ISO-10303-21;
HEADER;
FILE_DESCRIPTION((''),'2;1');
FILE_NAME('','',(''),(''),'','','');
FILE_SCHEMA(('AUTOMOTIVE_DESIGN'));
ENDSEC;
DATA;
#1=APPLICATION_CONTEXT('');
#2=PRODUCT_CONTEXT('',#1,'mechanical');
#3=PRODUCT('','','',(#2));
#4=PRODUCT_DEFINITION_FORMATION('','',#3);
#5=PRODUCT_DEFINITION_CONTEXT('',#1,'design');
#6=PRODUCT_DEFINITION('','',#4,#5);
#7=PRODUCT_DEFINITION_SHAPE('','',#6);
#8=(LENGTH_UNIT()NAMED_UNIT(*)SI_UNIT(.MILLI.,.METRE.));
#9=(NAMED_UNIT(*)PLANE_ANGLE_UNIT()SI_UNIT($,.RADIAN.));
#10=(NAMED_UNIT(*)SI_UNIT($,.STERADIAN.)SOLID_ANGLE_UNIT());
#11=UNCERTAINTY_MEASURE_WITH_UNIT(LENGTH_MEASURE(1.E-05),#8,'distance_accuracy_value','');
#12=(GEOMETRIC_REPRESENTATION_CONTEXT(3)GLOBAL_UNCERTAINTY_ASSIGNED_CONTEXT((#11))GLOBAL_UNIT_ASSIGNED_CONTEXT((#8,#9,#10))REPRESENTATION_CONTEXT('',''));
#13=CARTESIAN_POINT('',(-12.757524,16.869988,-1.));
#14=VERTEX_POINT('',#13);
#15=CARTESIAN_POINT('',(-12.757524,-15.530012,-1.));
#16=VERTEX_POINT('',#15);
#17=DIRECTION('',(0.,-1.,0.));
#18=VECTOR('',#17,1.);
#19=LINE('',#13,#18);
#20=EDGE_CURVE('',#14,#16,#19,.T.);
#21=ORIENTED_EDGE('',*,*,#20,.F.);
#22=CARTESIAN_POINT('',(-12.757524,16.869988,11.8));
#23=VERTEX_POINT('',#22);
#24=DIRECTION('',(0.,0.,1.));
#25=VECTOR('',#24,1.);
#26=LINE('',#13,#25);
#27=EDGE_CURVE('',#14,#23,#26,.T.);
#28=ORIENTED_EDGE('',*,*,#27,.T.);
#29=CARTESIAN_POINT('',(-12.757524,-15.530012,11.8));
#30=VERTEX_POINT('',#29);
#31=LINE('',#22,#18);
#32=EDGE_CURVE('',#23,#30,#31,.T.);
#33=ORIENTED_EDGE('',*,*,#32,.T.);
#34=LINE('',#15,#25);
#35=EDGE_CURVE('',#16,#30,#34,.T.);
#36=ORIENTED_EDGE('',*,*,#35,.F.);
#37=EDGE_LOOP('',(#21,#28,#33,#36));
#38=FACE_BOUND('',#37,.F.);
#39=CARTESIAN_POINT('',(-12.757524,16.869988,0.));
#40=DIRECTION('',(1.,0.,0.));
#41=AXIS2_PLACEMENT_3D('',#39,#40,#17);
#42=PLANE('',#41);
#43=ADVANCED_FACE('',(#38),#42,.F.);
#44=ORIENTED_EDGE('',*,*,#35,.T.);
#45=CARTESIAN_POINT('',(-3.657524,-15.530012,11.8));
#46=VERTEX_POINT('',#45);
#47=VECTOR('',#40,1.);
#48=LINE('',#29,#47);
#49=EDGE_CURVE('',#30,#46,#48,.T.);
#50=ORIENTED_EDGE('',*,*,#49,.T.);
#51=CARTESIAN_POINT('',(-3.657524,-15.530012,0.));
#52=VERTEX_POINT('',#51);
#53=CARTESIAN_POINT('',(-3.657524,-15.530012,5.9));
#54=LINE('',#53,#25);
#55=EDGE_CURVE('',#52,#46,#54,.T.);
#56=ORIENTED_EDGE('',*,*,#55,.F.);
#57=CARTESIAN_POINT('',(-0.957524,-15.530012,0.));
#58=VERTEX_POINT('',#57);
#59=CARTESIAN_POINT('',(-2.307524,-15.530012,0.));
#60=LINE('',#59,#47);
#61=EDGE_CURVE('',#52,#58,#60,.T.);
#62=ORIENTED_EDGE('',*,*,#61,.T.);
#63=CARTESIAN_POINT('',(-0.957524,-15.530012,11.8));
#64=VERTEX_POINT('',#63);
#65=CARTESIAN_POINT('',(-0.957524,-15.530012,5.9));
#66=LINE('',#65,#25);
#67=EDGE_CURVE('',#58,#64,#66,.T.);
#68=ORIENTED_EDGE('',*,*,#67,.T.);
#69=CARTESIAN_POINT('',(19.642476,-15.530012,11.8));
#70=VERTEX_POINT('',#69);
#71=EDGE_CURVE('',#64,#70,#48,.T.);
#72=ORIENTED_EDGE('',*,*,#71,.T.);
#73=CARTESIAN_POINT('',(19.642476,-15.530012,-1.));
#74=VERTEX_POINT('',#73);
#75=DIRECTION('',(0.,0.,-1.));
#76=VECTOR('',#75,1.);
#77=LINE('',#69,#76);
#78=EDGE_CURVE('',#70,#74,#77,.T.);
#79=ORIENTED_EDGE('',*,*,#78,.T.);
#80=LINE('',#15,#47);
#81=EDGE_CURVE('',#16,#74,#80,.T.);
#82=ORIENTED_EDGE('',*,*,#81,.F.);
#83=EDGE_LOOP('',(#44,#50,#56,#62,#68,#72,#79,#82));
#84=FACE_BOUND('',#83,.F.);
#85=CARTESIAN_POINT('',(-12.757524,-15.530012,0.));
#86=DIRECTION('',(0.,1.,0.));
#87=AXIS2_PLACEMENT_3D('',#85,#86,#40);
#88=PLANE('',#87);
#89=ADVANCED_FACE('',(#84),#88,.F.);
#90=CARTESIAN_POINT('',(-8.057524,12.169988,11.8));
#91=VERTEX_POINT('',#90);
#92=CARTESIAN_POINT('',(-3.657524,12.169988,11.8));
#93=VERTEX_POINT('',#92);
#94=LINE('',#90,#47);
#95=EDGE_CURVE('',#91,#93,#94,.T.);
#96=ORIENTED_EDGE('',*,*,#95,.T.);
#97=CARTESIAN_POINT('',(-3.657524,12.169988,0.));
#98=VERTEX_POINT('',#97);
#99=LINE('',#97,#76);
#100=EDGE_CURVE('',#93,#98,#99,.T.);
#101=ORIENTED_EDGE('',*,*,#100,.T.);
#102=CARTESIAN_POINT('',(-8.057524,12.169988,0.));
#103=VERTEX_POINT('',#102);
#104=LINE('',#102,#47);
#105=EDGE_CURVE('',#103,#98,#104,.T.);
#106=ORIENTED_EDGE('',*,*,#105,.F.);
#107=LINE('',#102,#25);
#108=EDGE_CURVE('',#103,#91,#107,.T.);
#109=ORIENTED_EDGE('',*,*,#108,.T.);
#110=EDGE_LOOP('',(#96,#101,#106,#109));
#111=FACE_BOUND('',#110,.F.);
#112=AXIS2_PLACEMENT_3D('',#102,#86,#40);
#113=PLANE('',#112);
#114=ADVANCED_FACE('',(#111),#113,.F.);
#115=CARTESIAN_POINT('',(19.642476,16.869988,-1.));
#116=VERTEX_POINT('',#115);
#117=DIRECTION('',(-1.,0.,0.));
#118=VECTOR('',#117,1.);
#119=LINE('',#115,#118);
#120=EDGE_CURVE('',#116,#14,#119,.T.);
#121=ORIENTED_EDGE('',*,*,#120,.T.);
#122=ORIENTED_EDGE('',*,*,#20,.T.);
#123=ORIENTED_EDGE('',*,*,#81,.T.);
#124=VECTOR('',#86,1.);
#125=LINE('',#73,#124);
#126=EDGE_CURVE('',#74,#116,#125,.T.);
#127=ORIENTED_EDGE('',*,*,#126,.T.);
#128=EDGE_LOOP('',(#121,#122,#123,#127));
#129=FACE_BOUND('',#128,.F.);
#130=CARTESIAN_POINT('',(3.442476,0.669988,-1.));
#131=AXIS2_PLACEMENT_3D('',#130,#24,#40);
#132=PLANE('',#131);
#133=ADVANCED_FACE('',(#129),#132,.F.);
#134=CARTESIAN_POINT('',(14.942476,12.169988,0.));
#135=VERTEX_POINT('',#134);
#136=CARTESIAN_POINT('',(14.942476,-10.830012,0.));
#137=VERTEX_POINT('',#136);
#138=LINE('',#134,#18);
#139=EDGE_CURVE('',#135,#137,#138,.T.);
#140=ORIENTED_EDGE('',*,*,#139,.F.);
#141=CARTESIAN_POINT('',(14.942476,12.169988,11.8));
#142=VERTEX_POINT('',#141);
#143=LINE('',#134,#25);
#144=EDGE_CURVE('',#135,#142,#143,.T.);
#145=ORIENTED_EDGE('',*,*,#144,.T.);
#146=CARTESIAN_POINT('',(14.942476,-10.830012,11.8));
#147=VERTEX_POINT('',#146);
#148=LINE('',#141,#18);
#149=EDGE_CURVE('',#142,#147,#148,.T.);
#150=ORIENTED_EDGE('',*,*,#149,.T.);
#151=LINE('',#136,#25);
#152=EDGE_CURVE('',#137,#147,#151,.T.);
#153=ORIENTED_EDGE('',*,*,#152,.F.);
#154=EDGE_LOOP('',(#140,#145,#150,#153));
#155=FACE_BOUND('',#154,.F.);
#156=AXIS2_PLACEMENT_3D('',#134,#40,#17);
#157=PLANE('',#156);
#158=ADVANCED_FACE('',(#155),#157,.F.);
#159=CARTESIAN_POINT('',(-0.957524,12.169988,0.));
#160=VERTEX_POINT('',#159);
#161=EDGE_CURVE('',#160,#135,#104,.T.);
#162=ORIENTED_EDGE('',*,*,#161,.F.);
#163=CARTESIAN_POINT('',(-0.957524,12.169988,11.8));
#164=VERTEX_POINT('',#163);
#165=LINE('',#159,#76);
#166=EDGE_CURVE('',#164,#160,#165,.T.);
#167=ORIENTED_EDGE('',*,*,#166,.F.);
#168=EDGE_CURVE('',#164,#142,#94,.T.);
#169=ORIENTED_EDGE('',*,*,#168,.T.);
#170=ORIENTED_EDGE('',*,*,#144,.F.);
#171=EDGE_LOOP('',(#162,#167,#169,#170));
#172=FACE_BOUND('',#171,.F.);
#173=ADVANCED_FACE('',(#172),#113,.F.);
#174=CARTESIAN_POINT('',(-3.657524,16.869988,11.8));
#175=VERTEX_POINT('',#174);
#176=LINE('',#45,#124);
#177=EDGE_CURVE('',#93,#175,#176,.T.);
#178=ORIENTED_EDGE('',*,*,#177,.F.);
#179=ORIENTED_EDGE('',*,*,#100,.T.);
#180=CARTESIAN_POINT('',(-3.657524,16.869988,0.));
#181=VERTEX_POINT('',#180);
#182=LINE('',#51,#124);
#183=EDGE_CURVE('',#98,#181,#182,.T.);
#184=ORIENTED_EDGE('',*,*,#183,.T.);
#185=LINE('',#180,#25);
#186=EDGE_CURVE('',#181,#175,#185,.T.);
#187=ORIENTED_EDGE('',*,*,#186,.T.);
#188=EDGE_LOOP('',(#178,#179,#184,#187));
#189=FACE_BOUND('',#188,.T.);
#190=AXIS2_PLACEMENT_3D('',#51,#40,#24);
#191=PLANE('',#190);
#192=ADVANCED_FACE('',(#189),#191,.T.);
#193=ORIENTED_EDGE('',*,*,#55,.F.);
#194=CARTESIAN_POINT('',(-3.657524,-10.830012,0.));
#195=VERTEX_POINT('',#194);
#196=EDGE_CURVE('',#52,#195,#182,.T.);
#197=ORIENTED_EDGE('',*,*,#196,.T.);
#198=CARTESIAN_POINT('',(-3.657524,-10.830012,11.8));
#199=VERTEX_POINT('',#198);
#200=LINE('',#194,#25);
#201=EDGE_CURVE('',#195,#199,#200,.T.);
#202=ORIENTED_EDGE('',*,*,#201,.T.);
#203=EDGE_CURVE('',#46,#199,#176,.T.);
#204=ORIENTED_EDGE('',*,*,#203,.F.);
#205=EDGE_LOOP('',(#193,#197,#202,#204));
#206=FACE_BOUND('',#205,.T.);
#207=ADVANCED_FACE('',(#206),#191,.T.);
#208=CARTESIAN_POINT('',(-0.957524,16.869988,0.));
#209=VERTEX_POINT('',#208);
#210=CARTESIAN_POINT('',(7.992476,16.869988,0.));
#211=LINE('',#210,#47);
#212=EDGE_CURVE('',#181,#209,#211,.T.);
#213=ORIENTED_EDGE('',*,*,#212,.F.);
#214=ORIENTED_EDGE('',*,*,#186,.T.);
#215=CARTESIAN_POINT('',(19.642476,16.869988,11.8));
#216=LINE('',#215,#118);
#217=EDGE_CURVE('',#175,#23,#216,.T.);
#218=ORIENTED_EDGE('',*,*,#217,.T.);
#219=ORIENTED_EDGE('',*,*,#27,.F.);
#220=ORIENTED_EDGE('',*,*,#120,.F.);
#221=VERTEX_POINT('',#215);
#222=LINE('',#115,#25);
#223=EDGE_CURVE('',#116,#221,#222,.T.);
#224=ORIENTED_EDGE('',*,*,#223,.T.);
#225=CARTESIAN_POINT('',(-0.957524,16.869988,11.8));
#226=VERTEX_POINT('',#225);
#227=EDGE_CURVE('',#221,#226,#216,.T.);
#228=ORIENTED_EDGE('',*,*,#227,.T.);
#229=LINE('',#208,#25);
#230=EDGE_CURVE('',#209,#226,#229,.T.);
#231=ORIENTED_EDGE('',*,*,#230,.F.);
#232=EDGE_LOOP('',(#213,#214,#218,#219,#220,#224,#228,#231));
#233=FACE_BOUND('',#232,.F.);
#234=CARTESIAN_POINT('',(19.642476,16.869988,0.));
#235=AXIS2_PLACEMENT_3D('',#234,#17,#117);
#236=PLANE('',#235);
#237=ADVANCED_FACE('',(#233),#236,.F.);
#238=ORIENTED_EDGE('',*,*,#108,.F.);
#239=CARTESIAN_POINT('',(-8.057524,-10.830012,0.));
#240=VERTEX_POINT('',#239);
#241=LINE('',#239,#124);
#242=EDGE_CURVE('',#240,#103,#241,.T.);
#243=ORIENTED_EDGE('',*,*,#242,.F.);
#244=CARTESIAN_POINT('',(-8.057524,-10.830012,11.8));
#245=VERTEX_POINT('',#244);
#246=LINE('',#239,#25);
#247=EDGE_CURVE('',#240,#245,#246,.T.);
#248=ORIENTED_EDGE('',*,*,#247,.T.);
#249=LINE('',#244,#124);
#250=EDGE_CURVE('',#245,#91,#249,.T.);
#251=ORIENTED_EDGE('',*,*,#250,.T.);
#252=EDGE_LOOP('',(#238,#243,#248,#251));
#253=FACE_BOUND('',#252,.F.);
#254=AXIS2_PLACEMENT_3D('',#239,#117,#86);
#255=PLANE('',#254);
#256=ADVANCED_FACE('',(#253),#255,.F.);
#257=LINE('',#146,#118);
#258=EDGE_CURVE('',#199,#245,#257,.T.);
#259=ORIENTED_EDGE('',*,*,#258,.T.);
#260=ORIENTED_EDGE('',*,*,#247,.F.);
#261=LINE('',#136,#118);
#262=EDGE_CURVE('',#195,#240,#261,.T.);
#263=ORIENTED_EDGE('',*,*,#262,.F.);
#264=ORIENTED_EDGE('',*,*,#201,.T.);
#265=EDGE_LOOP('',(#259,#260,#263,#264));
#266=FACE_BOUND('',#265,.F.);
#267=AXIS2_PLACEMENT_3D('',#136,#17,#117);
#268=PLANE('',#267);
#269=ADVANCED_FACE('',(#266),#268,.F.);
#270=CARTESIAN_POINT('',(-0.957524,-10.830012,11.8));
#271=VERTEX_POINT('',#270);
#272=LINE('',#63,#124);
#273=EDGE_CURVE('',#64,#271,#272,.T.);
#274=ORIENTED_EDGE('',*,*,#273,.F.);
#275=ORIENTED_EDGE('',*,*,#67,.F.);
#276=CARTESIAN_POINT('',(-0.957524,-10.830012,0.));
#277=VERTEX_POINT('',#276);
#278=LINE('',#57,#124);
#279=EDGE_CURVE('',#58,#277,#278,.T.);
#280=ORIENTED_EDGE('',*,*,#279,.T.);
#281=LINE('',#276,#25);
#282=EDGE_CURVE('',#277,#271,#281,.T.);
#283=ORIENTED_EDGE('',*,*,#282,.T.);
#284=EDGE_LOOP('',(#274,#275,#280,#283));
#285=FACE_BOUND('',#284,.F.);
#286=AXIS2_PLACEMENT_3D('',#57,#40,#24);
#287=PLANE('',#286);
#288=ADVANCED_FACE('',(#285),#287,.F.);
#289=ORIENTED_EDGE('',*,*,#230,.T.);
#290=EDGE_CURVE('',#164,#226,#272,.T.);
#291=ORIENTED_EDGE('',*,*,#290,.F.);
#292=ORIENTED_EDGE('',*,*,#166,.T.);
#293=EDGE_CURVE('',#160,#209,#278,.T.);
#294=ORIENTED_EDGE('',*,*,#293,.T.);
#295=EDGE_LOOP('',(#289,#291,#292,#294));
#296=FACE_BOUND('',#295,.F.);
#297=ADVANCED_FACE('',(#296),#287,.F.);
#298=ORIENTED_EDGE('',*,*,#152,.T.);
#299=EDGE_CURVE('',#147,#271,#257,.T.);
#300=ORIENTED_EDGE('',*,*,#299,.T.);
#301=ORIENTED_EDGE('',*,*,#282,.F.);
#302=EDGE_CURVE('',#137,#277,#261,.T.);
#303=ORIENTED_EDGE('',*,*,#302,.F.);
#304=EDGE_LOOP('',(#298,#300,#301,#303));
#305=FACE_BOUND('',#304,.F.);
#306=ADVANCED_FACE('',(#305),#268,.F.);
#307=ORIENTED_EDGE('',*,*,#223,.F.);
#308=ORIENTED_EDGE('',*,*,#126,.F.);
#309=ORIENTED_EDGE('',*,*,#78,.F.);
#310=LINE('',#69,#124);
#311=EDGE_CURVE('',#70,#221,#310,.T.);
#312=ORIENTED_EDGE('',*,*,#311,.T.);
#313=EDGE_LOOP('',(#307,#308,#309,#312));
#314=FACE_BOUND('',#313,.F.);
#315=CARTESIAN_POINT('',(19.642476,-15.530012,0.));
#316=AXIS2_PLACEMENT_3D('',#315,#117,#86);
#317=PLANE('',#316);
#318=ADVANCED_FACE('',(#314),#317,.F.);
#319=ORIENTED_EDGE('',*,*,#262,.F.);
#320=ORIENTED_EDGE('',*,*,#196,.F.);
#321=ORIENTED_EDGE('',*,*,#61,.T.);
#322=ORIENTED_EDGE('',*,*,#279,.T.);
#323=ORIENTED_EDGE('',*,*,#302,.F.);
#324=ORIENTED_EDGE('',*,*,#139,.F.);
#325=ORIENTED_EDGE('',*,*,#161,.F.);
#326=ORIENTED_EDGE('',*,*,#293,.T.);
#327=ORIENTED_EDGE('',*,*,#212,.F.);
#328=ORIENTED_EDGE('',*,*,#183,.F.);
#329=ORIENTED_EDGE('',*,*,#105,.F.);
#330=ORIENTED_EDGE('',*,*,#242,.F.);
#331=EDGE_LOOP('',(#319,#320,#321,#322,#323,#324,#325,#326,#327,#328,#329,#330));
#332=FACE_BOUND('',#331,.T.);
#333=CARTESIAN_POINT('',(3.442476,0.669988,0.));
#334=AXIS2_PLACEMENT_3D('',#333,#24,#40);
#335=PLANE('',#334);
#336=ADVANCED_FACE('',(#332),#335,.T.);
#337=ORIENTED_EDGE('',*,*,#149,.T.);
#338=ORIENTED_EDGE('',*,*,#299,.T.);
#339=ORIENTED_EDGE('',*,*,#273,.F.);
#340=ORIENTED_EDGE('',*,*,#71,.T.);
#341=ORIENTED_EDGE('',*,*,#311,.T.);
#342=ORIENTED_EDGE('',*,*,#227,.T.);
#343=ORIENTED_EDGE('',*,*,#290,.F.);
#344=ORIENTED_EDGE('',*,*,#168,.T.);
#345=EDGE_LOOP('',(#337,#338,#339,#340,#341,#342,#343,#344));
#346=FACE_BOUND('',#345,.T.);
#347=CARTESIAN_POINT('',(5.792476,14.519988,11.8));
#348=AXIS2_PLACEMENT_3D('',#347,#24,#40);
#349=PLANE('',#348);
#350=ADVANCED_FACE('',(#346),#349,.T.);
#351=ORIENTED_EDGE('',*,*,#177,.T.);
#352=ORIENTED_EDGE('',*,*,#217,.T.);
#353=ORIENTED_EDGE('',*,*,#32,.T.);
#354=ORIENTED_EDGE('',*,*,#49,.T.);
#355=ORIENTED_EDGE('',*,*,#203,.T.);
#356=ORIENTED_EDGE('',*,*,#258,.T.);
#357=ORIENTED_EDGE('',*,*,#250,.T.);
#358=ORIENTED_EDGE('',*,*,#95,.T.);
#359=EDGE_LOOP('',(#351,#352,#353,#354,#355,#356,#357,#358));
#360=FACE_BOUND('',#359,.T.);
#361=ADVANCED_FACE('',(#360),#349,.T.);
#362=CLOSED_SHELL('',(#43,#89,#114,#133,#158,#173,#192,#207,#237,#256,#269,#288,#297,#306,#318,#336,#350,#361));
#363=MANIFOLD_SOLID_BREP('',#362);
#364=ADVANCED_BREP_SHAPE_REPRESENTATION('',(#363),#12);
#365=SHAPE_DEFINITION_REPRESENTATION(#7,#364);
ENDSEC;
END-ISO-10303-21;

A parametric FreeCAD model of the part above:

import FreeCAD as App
import Part
import Sketcher
from FreeCAD import Vector


def add_polygon(sketch, points):
    """Adds a closed chain of lines whose ends are joined by coincident constraints."""
    first, n = sketch.GeometryCount, len(points)
    for a, b in zip(points, points[1:] + points[:1]):
        sketch.addGeometry(Part.LineSegment(App.Vector(*a, 0), App.Vector(*b, 0)), False)
    for i in range(n):
        sketch.addConstraint(Sketcher.Constraint("Coincident", first + i, 2, first + (i + 1) % n, 1))

doc = App.newDocument("Part")
body = doc.addObject("PartDesign::Body", "Body")

sketch1 = body.newObject("Sketcher::SketchObject", "Sketch")
sketch1.AttachmentSupport = (doc.getObject("XY_Plane"), [""])
sketch1.MapMode = "FlatFace"
add_polygon(sketch1, [(-13, -16), (20, -16), (20, 17), (-13, 17)])
sketch1.addConstraint([
    Sketcher.Constraint("Horizontal", 0),
    Sketcher.Constraint("Vertical", 1),
    Sketcher.Constraint("Horizontal", 2),
    Sketcher.Constraint("Vertical", 3),
    Sketcher.Constraint("Equal", 2, 1),
    Sketcher.Constraint("DistanceX", 0, 1, 0, 2, 32.4),
    Sketcher.Constraint("DistanceY", 0, 2, -1, 1, 15.530012),
    Sketcher.Constraint("DistanceX", -1, 1, 0, 2, 19.642476),
])
pad1 = body.newObject("PartDesign::Pad", "Pad")
pad1.Profile = sketch1
pad1.Length = 1
pad1.Reversed = True

sketch2 = body.newObject("Sketcher::SketchObject", "Sketch001")
sketch2.AttachmentSupport = (doc.getObject("XY_Plane"), [""])
sketch2.MapMode = "FlatFace"
add_polygon(sketch2, [(20, -16), (20, 17), (-13, 17), (-13, -16)])
add_polygon(sketch2, [(-8, 12), (15, 12), (15, -11), (-8, -11)])
sketch2.addConstraint([
    Sketcher.Constraint("Vertical", 0),
    Sketcher.Constraint("Horizontal", 1),
    Sketcher.Constraint("Vertical", 2),
    Sketcher.Constraint("Horizontal", 3),
    Sketcher.Constraint("Horizontal", 4),
    Sketcher.Constraint("Vertical", 5),
    Sketcher.Constraint("Horizontal", 6),
    Sketcher.Constraint("Vertical", 7),
    Sketcher.Constraint("Equal", 3, 0),
    Sketcher.Constraint("Equal", 6, 5),
    Sketcher.Constraint("DistanceX", 4, 1, 4, 2, 23.0),
    Sketcher.Constraint("DistanceX", 1, 2, 1, 1, 32.4),
    Sketcher.Constraint("DistanceX", 4, 2, 0, 2, 4.7),
    Sketcher.Constraint("DistanceY", 4, 2, 0, 2, 4.7),
    Sketcher.Constraint("DistanceY", 2, 2, -1, 1, 15.530012),
    Sketcher.Constraint("DistanceX", -1, 1, 0, 2, 19.642476),
])
pad2 = body.newObject("PartDesign::Pad", "Pad001")
pad2.Profile = sketch2
pad2.Length = 11.8

sketch3 = body.newObject("Sketcher::SketchObject", "Sketch002")
sketch3.AttachmentSupport = (doc.getObject("XZ_Plane"), [""])
sketch3.MapMode = "FlatFace"
sketch3.AttachmentOffset = App.Placement(Vector(0, 0, 15.530012), App.Rotation())
add_polygon(sketch3, [(-3.7, 11.8), (-3.7, 0), (-1, 0), (-1, 11.8)])
sketch3.addConstraint([
    Sketcher.Constraint("Vertical", 0),
    Sketcher.Constraint("Horizontal", 1),
    Sketcher.Constraint("Vertical", 2),
    Sketcher.Constraint("Horizontal", 3),
    Sketcher.Constraint("PointOnObject", 0, 2, -1),
    Sketcher.Constraint("DistanceX", 1, 1, 1, 2, 2.7),
    Sketcher.Constraint("DistanceY", 0, 2, 0, 1, 11.8),
    Sketcher.Constraint("DistanceX", 0, 2, -1, 1, 3.657524),
])
pocket1 = body.newObject("PartDesign::Pocket", "Pocket")
pocket1.Profile = sketch3
pocket1.Type = "ThroughAll"

doc.recompute()
